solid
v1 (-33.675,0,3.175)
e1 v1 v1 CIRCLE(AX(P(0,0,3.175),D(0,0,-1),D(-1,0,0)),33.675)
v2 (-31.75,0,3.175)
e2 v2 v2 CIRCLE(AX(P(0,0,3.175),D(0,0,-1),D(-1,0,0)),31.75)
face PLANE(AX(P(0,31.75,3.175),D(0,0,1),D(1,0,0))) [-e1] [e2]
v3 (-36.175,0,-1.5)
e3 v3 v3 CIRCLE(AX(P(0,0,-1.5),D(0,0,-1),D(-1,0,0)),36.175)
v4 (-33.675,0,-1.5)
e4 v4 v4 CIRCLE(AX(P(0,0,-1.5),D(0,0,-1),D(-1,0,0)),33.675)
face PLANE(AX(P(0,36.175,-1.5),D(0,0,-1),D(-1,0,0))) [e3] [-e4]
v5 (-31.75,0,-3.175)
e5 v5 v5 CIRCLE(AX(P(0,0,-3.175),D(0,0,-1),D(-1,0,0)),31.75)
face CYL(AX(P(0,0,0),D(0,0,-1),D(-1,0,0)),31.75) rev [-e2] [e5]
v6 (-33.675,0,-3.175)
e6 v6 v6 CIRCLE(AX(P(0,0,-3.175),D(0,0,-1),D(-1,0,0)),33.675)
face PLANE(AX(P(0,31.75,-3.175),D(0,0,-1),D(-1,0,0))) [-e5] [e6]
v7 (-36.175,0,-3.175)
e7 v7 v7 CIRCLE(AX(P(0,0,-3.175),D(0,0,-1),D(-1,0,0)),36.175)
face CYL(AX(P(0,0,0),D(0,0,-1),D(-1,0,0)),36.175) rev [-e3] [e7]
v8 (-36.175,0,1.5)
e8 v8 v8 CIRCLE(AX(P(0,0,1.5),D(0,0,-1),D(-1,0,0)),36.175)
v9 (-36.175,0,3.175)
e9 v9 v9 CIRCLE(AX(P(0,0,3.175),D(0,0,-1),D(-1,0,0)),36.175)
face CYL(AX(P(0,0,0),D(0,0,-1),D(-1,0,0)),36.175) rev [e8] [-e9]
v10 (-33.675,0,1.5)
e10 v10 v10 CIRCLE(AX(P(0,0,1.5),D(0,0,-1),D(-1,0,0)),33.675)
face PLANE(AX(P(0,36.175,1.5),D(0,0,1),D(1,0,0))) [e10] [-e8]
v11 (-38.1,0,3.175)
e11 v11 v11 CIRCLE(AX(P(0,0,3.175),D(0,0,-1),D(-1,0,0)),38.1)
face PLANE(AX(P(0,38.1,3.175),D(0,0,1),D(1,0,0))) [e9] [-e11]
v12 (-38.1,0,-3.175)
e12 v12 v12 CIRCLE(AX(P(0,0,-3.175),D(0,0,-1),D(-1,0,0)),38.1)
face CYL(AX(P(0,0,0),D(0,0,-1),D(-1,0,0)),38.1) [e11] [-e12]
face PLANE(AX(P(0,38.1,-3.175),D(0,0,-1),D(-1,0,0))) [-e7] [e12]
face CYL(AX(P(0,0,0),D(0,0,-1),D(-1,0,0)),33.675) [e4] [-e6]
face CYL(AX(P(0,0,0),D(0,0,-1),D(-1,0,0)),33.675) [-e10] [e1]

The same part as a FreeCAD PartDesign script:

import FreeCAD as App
import Part
import Sketcher

V = App.Vector


def add_polygon(sketch, points):
    """Adds a closed chain of lines whose ends are joined by coincident constraints."""
    first, n = sketch.GeometryCount, len(points)
    for a, b in zip(points, points[1:] + points[:1]):
        sketch.addGeometry(Part.LineSegment(App.Vector(*a, 0), App.Vector(*b, 0)), False)
    for i in range(n):
        sketch.addConstraint(Sketcher.Constraint("Coincident", first + i, 2, first + (i + 1) % n, 1))

doc = App.newDocument("Part")
params = doc.addObject("Spreadsheet::Sheet", "Params")
for row, (alias, value) in enumerate([
    ("sketch1_width", "2.5 mm"),
    ("sketch1_height", "6.35 mm"),
    ("revolution_angle", "360 deg"),
], start=1):
    params.set(f"A{row}", alias)
    params.set(f"B{row}", "=" + value)
    params.setAlias(f"B{row}", alias)

body = doc.addObject("PartDesign::Body", "Body")

sketch1 = body.newObject("Sketcher::SketchObject", "Sketch")
sketch1.AttachmentSupport = (doc.getObject("YZ_Plane"), [""])
sketch1.MapMode = "FlatFace"
add_polygon(sketch1, [(38.1, -3.2), (38.1, 3.2), (36.2, 3.2), (36.2, 1.5), (33.7, 1.5), (33.7, 3.2), (31.8, 3.2), (31.8, -3.2), (33.7, -3.2), (33.7, -1.5), (36.2, -1.5), (36.2, -3.2)])
sketch1.addConstraint([
    Sketcher.Constraint("Vertical", 0),
    Sketcher.Constraint("Horizontal", 1),
    Sketcher.Constraint("Vertical", 2),
    Sketcher.Constraint("Horizontal", 3),
    Sketcher.Constraint("Vertical", 4),
    Sketcher.Constraint("Horizontal", 5),
    Sketcher.Constraint("Vertical", 6),
    Sketcher.Constraint("Horizontal", 7),
    Sketcher.Constraint("Vertical", 8),
    Sketcher.Constraint("Horizontal", 9),
    Sketcher.Constraint("Vertical", 10),
    Sketcher.Constraint("Horizontal", 11),
    Sketcher.Constraint("Symmetric", 4, 2, 7, 2, -1),
    Sketcher.Constraint("Symmetric", 2, 2, 9, 2, -1),
    Sketcher.Constraint("Horizontal", 1, 2, 4, 2),
    Sketcher.Constraint("Horizontal", 7, 2, 10, 2),
    Sketcher.Constraint("Equal", 1, 5),
    Sketcher.Constraint("DistanceX", 3, 2, 3, 1, 2.5),
    Sketcher.Constraint("DistanceY", 8, 2, 3, 2, 3.0),
    Sketcher.Constraint("DistanceY", 0, 1, 0, 2, 6.35),
    Sketcher.Constraint("DistanceX", -1, 1, 0, 2, 38.1),
    Sketcher.Constraint("DistanceX", 1, 2, 1, 1, 1.925),
])
sketch1.setExpression("Constraints[29]", "Params.sketch1_width")
sketch1.setExpression("Constraints[31]", "Params.sketch1_height")
revolution = body.newObject("PartDesign::Revolution", "Revolution")
revolution.Profile = sketch1
revolution.ReferenceAxis = (sketch1, ["V_Axis"])
revolution.setExpression("Angle", "Params.revolution_angle")

doc.recompute()
